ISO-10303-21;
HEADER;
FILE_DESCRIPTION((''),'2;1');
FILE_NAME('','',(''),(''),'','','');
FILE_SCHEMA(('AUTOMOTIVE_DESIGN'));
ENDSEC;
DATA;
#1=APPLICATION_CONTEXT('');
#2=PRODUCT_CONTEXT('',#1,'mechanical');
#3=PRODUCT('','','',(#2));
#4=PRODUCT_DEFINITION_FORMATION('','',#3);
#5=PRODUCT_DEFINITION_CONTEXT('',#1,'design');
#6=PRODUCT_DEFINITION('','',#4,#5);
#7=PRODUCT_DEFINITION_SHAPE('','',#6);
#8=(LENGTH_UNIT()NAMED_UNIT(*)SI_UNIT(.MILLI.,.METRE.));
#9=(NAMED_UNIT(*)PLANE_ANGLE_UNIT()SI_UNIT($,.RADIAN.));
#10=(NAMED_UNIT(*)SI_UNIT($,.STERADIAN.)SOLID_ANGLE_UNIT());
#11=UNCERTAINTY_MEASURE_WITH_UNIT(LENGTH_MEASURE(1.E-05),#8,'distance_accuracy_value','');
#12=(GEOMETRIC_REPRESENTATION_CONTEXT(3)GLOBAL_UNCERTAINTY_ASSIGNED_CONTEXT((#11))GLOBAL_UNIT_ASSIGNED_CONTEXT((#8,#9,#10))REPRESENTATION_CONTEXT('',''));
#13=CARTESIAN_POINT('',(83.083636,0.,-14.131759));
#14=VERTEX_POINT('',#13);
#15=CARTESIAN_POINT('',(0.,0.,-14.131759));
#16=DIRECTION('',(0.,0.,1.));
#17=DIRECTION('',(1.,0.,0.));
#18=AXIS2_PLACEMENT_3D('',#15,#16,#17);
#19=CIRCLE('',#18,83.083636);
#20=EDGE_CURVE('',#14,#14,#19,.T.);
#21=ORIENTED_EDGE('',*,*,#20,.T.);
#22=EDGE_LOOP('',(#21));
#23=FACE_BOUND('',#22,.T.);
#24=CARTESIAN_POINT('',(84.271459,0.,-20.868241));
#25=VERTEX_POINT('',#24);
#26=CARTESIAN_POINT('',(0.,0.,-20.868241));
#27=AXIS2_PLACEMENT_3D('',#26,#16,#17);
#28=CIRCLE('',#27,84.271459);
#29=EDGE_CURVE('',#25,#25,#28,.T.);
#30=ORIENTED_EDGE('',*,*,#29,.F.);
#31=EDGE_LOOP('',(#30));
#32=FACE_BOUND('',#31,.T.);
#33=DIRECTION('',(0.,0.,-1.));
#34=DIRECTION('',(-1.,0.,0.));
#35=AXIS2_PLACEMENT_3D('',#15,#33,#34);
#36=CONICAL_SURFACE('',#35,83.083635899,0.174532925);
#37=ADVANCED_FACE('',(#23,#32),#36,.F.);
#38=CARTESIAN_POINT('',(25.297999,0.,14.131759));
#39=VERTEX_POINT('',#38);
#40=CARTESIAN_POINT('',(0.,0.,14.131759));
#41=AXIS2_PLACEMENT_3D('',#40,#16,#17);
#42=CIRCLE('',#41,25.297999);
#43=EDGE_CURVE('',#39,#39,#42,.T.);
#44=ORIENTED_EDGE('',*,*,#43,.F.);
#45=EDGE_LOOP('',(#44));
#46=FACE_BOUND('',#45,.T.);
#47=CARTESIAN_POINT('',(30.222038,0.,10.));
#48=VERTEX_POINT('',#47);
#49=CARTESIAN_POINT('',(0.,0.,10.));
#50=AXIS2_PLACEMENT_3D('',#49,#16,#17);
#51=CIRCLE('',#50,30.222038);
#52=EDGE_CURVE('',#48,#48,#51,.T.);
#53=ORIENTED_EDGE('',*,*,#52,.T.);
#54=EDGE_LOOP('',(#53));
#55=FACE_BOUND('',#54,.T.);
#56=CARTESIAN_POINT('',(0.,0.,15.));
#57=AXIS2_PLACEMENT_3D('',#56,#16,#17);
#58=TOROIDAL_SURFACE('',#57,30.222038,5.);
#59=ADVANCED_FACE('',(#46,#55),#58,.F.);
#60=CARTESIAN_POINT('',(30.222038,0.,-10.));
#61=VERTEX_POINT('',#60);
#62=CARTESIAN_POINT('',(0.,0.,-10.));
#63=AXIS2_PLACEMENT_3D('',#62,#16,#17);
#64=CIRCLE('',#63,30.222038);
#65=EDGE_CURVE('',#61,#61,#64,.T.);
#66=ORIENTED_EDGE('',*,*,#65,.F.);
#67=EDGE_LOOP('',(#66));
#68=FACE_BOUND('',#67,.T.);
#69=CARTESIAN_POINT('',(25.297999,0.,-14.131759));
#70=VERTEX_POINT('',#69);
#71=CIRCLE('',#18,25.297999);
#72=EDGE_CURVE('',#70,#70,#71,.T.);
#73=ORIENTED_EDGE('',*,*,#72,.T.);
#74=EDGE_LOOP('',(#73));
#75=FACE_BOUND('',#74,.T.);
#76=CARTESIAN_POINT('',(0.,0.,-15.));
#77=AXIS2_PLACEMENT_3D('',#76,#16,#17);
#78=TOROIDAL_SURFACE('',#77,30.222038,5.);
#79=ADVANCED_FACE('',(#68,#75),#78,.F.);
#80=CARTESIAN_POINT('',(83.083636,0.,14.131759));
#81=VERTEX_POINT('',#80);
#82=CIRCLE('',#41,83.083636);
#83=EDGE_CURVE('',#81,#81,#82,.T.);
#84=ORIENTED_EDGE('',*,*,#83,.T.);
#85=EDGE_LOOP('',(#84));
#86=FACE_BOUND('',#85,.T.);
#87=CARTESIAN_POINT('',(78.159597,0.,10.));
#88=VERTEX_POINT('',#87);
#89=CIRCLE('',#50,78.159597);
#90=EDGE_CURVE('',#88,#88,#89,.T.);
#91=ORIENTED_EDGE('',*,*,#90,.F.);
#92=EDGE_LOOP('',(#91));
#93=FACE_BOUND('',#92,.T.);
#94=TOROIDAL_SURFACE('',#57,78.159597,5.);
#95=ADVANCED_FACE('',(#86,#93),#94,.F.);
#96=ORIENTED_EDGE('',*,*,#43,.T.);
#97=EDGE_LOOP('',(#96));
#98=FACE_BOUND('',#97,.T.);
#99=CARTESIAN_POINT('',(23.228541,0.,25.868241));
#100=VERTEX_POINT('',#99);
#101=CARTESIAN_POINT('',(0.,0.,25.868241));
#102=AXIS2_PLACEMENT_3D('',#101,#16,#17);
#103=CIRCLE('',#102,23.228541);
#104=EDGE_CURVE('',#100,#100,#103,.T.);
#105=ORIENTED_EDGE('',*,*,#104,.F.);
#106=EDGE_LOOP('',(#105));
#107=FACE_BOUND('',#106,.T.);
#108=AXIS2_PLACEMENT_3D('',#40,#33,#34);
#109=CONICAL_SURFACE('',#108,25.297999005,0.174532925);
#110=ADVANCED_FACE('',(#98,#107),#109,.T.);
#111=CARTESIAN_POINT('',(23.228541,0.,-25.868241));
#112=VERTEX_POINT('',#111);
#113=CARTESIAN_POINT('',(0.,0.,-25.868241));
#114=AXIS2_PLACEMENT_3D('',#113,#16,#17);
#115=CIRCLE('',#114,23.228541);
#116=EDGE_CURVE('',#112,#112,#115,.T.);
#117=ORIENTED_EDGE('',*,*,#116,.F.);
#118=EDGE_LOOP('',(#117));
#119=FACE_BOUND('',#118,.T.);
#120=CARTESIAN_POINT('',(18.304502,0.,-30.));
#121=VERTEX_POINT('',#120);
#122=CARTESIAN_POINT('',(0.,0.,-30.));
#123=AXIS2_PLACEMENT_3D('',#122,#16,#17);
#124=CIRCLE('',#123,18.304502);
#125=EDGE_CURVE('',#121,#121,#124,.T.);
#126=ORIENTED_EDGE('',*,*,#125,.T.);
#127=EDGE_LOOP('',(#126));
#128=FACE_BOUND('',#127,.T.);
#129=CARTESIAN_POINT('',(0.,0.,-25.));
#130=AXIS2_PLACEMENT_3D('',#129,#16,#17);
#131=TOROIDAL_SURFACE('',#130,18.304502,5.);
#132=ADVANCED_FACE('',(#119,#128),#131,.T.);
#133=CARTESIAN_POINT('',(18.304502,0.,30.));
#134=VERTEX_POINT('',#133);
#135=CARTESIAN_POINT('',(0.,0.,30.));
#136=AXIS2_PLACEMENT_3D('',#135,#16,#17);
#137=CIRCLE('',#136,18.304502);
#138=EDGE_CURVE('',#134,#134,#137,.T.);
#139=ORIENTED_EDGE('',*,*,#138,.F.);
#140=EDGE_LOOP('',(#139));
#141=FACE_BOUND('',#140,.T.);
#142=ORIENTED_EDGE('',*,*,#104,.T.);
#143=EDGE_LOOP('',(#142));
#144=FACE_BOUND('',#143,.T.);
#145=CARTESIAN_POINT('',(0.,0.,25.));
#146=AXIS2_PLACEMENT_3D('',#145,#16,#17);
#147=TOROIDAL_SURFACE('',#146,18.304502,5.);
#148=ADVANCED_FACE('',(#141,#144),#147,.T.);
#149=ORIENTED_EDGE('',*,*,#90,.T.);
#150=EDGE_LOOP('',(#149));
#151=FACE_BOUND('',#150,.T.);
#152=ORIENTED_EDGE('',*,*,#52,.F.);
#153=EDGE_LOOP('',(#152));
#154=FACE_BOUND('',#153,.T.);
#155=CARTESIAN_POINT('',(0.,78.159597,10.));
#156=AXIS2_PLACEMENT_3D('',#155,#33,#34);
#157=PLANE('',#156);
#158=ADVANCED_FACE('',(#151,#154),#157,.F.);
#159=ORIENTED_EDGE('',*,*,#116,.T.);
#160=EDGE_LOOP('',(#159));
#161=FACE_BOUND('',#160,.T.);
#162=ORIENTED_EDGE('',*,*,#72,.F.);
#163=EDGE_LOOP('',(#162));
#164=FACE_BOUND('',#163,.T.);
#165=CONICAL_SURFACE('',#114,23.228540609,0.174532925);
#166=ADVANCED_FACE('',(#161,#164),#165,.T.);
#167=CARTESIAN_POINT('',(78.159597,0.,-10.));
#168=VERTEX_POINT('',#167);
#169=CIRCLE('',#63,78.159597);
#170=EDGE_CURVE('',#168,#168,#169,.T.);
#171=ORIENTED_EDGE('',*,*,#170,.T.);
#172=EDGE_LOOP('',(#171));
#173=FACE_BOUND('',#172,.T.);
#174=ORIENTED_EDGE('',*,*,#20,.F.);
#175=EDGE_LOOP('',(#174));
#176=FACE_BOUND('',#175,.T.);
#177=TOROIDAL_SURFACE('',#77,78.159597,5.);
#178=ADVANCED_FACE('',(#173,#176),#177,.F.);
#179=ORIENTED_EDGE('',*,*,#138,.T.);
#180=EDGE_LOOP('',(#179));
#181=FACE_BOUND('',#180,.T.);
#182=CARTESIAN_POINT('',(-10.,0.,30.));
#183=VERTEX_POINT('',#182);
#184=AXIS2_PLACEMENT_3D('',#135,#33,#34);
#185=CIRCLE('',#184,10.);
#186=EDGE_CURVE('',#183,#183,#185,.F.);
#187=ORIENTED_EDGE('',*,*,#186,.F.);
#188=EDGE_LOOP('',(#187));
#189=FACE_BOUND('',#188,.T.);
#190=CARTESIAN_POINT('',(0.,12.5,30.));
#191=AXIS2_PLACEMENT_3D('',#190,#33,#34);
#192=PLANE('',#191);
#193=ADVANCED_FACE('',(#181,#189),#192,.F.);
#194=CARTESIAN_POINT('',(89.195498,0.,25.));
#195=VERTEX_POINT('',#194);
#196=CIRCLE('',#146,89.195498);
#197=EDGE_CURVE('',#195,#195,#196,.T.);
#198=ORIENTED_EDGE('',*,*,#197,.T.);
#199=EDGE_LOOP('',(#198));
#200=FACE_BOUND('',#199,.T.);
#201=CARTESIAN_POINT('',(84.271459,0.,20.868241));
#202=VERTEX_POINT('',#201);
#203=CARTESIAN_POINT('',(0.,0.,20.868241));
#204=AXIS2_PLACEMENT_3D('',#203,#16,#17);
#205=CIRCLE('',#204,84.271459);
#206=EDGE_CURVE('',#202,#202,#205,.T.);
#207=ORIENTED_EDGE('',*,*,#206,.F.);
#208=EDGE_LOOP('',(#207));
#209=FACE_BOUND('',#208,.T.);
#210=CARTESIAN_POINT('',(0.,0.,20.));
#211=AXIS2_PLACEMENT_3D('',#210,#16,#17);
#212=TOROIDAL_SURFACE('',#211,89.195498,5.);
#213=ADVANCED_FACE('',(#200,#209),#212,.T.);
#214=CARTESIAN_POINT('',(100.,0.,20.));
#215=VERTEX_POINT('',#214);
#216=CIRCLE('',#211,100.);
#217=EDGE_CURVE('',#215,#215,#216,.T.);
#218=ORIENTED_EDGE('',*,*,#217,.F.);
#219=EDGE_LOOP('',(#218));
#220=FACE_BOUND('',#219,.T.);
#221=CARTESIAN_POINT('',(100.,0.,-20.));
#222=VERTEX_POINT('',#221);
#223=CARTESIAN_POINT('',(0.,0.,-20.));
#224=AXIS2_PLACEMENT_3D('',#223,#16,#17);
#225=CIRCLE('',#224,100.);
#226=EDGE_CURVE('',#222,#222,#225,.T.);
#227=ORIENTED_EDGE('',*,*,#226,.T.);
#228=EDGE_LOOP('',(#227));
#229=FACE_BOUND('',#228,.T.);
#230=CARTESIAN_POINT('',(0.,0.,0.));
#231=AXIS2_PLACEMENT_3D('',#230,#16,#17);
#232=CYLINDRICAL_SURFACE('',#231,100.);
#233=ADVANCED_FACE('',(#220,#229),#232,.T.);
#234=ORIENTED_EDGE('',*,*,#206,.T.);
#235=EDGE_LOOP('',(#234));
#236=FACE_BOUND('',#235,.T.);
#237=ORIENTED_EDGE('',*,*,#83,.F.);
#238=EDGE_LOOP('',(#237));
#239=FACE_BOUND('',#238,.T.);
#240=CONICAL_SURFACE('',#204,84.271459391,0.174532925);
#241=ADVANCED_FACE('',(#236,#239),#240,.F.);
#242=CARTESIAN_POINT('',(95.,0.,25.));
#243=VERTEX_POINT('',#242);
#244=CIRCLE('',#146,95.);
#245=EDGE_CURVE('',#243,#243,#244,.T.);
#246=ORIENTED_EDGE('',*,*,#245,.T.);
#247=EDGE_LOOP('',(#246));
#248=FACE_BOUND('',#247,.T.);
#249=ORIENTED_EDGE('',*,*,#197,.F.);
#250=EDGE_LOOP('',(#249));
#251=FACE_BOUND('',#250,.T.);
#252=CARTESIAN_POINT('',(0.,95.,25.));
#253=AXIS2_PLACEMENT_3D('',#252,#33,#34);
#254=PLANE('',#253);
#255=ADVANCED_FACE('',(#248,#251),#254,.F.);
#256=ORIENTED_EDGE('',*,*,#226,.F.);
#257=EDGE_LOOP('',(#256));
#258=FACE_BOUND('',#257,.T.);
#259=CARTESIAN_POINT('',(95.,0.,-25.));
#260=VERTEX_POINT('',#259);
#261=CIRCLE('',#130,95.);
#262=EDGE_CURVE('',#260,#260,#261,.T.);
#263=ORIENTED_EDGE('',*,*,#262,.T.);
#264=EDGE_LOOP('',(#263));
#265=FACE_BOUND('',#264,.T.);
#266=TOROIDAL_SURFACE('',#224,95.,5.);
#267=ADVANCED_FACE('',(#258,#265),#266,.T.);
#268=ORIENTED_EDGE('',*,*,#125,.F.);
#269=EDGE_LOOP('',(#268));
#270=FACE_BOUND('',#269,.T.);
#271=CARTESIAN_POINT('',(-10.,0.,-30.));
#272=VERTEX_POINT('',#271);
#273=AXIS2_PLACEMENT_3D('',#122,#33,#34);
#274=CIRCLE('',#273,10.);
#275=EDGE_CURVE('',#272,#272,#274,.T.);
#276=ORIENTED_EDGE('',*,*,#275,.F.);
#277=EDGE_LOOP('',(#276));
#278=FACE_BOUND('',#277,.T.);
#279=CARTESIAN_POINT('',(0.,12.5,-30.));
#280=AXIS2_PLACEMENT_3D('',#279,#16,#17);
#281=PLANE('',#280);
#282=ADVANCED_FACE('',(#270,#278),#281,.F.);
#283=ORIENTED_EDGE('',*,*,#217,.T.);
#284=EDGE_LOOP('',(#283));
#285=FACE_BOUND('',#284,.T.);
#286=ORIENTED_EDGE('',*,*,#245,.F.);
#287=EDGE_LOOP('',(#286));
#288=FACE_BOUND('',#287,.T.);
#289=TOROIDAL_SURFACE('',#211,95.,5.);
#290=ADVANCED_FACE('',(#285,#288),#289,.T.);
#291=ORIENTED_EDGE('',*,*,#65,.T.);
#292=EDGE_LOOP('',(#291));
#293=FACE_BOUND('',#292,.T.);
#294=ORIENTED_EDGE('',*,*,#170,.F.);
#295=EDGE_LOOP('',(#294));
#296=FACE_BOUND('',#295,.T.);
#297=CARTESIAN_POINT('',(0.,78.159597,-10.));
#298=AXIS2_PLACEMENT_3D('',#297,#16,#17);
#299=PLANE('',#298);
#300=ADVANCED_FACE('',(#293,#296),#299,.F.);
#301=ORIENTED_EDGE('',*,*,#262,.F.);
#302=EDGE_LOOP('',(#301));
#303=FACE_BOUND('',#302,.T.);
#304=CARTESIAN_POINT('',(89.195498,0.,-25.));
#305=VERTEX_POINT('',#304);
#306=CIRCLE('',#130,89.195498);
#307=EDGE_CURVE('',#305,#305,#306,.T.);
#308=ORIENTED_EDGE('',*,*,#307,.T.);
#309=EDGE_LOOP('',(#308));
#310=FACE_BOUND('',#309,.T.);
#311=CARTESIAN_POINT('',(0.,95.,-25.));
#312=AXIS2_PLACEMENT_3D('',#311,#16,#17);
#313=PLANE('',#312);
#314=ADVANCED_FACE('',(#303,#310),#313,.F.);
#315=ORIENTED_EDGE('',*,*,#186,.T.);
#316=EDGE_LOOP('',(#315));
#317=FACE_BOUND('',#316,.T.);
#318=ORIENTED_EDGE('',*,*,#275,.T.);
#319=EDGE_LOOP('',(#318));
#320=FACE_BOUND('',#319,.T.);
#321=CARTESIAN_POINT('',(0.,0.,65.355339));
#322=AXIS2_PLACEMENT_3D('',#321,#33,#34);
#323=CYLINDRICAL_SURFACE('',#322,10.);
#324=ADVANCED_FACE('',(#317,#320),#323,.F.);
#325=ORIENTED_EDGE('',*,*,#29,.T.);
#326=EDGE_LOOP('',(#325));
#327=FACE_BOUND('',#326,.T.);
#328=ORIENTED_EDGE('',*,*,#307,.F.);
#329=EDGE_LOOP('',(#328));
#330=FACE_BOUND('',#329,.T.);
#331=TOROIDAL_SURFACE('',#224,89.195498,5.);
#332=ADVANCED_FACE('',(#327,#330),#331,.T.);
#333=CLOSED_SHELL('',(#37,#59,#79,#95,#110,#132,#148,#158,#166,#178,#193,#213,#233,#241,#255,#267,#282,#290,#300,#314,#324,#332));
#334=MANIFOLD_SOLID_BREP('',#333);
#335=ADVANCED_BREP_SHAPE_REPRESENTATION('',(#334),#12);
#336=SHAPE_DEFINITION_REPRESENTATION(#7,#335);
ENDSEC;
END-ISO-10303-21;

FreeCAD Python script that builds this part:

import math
import FreeCAD as App
import Part
import Sketcher

V = App.Vector
Q = App.Units.Quantity

doc = App.newDocument("Part")
body = doc.addObject("PartDesign::Body", "Body")

# Sketch on YZ plane
sketch1 = body.newObject("Sketcher::SketchObject", "Sketch")
sketch1.AttachmentSupport = (doc.getObject("YZ_Plane"), [""])
sketch1.MapMode = "FlatFace"
sketch1.addGeometry([
    Part.LineSegment(V(100, -20, 0), V(100, 20, 0)),  # 0
    Part.ArcOfCircle(Part.Circle(V(95, 20, 0), V(0, 0, 1), 5), math.radians(0), math.radians(90)),  # 1
    Part.LineSegment(V(95, 25, 0), V(89.195498, 25, 0)),  # 2
    Part.ArcOfCircle(Part.Circle(V(89.195498, 20, 0), V(0, 0, 1), 5), math.radians(90), math.radians(170)),  # 3
    Part.LineSegment(V(84.271459, 20.868241, 0), V(83.083636, 14.131759, 0)),  # 4
    Part.ArcOfCircle(Part.Circle(V(78.159597, 15, 0), V(0, 0, 1), 5), math.radians(-90), math.radians(-10)),  # 5
    Part.LineSegment(V(78.159597, 10, 0), V(30.222038, 10, 0)),  # 6
    Part.ArcOfCircle(Part.Circle(V(30.222038, 15, 0), V(0, 0, 1), 5), math.radians(-170), math.radians(-90)),  # 7
    Part.LineSegment(V(25.297999, 14.131759, 0), V(23.228541, 25.868241, 0)),  # 8
    Part.ArcOfCircle(Part.Circle(V(18.304502, 25, 0), V(0, 0, 1), 5), math.radians(10), math.radians(90)),  # 9
    Part.LineSegment(V(18.304502, 30, 0), V(12.5, 30, 0)),  # 10
    Part.LineSegment(V(12.5, 30, 0), V(12.5, -30, 0)),  # 11
    Part.LineSegment(V(12.5, -30, 0), V(18.304502, -30, 0)),  # 12
    Part.ArcOfCircle(Part.Circle(V(18.304502, -25, 0), V(0, 0, 1), 5), math.radians(-90), math.radians(-10)),  # 13
    Part.LineSegment(V(23.228541, -25.868241, 0), V(25.297999, -14.131759, 0)),  # 14
    Part.ArcOfCircle(Part.Circle(V(30.222038, -15, 0), V(0, 0, 1), 5), math.radians(90), math.radians(170)),  # 15
    Part.LineSegment(V(30.222038, -10, 0), V(78.159597, -10, 0)),  # 16
    Part.ArcOfCircle(Part.Circle(V(78.159597, -15, 0), V(0, 0, 1), 5), math.radians(10), math.radians(90)),  # 17
    Part.LineSegment(V(83.083636, -14.131759, 0), V(84.271459, -20.868241, 0)),  # 18
    Part.ArcOfCircle(Part.Circle(V(89.195498, -20, 0), V(0, 0, 1), 5), math.radians(-170), math.radians(-90)),  # 19
    Part.LineSegment(V(89.195498, -25, 0), V(95, -25, 0)),  # 20
    Part.ArcOfCircle(Part.Circle(V(95, -20, 0), V(0, 0, 1), 5), math.radians(-90), math.radians(0)),  # 21
], False)
sketch1.addConstraint([
    Sketcher.Constraint("Tangent", 0, 2, 1, 1),
    Sketcher.Constraint("Tangent", 1, 2, 2, 1),
    Sketcher.Constraint("Tangent", 2, 2, 3, 1),
    Sketcher.Constraint("Tangent", 3, 2, 4, 1),
    Sketcher.Constraint("Tangent", 4, 2, 5, 2),
    Sketcher.Constraint("Tangent", 5, 1, 6, 1),
    Sketcher.Constraint("Tangent", 6, 2, 7, 2),
    Sketcher.Constraint("Tangent", 7, 1, 8, 1),
    Sketcher.Constraint("Tangent", 8, 2, 9, 1),
    Sketcher.Constraint("Tangent", 9, 2, 10, 1),
    Sketcher.Constraint("Coincident", 10, 2, 11, 1),
    Sketcher.Constraint("Coincident", 11, 2, 12, 1),
    Sketcher.Constraint("Tangent", 12, 2, 13, 1),
    Sketcher.Constraint("Tangent", 13, 2, 14, 1),
    Sketcher.Constraint("Tangent", 14, 2, 15, 2),
    Sketcher.Constraint("Tangent", 15, 1, 16, 1),
    Sketcher.Constraint("Tangent", 16, 2, 17, 2),
    Sketcher.Constraint("Tangent", 17, 1, 18, 1),
    Sketcher.Constraint("Tangent", 18, 2, 19, 1),
    Sketcher.Constraint("Tangent", 19, 2, 20, 1),
    Sketcher.Constraint("Tangent", 20, 2, 21, 1),
    Sketcher.Constraint("Tangent", 21, 2, 0, 1),
    Sketcher.Constraint("Vertical", 0),
    Sketcher.Constraint("Horizontal", 2),
    Sketcher.Constraint("Horizontal", 6),
    Sketcher.Constraint("Horizontal", 10),
    Sketcher.Constraint("Vertical", 11),
    Sketcher.Constraint("Horizontal", 12),
    Sketcher.Constraint("Horizontal", 16),
    Sketcher.Constraint("Horizontal", 20),
    Sketcher.Constraint("Equal", 1, 3),
    Sketcher.Constraint("Equal", 3, 5),
    Sketcher.Constraint("Equal", 5, 7),
    Sketcher.Constraint("Equal", 7, 9),
    Sketcher.Constraint("Equal", 9, 13),
    Sketcher.Constraint("Equal", 13, 15),
    Sketcher.Constraint("Equal", 15, 17),
    Sketcher.Constraint("Equal", 17, 19),
    Sketcher.Constraint("Equal", 19, 21),
    Sketcher.Constraint("Symmetric", 9, 3, 13, 3, -1),
    Sketcher.Constraint("Symmetric", 7, 3, 15, 3, -1),
    Sketcher.Constraint("Symmetric", 3, 3, 19, 3, -1),
    Sketcher.Constraint("Parallel", 4, 14),
    Sketcher.Constraint("Parallel", 8, 18),
    Sketcher.Constraint("Horizontal", 9, 3, 1, 2),
    Sketcher.Constraint("Equal", 2, 10),
    Sketcher.Constraint("Radius", 1, Q("5 mm")),
    Sketcher.Constraint("DistanceY", 0, 1, 0, 2, Q("40 mm")),
    Sketcher.Constraint("Angle", 4, Q("-100 deg")),
    Sketcher.Constraint("DistanceX", -1, 1, 1, 3, Q("95 mm")),
    Sketcher.Constraint("DistanceY", -1, 1, 5, 3, Q("15 mm")),
    Sketcher.Constraint("DistanceX", -1, 1, 10, 2, Q("12.5 mm")),
    Sketcher.Constraint("DistanceX", 2, 2, 2, 1, Q("5.804502 mm")),
])
revolution = body.newObject("PartDesign::Revolution", "Revolution")
revolution.Profile = sketch1
revolution.ReferenceAxis = (sketch1, ["V_Axis"])
revolution.Angle = 360

# Sketch on XY plane
sketch2 = body.newObject("Sketcher::SketchObject", "Sketch001")
sketch2.AttachmentSupport = (doc.getObject("XY_Plane"), [""])
sketch2.MapMode = "FlatFace"
sketch2.AttachmentOffset = App.Placement(V(0, 0, 30), App.Rotation())
sketch2.addGeometry([
    Part.Circle(V(0, 0, 0), V(0, 0, 1), 12.5),
    Part.Circle(V(0, 0, 0), V(0, 0, 1), 10),
], False)
sketch2.addConstraint([
    Sketcher.Constraint("Coincident", 0, 3, -1, 1),
    Sketcher.Constraint("Coincident", 1, 3, -1, 1),
    Sketcher.Constraint("Diameter", 0, Q("25 mm")),
    Sketcher.Constraint("Diameter", 1, Q("20 mm")),
])
pad1 = body.newObject("PartDesign::Pad", "Pad")
pad1.Profile = sketch2
pad1.Length = 60
pad1.Reversed = True

doc.recompute()
